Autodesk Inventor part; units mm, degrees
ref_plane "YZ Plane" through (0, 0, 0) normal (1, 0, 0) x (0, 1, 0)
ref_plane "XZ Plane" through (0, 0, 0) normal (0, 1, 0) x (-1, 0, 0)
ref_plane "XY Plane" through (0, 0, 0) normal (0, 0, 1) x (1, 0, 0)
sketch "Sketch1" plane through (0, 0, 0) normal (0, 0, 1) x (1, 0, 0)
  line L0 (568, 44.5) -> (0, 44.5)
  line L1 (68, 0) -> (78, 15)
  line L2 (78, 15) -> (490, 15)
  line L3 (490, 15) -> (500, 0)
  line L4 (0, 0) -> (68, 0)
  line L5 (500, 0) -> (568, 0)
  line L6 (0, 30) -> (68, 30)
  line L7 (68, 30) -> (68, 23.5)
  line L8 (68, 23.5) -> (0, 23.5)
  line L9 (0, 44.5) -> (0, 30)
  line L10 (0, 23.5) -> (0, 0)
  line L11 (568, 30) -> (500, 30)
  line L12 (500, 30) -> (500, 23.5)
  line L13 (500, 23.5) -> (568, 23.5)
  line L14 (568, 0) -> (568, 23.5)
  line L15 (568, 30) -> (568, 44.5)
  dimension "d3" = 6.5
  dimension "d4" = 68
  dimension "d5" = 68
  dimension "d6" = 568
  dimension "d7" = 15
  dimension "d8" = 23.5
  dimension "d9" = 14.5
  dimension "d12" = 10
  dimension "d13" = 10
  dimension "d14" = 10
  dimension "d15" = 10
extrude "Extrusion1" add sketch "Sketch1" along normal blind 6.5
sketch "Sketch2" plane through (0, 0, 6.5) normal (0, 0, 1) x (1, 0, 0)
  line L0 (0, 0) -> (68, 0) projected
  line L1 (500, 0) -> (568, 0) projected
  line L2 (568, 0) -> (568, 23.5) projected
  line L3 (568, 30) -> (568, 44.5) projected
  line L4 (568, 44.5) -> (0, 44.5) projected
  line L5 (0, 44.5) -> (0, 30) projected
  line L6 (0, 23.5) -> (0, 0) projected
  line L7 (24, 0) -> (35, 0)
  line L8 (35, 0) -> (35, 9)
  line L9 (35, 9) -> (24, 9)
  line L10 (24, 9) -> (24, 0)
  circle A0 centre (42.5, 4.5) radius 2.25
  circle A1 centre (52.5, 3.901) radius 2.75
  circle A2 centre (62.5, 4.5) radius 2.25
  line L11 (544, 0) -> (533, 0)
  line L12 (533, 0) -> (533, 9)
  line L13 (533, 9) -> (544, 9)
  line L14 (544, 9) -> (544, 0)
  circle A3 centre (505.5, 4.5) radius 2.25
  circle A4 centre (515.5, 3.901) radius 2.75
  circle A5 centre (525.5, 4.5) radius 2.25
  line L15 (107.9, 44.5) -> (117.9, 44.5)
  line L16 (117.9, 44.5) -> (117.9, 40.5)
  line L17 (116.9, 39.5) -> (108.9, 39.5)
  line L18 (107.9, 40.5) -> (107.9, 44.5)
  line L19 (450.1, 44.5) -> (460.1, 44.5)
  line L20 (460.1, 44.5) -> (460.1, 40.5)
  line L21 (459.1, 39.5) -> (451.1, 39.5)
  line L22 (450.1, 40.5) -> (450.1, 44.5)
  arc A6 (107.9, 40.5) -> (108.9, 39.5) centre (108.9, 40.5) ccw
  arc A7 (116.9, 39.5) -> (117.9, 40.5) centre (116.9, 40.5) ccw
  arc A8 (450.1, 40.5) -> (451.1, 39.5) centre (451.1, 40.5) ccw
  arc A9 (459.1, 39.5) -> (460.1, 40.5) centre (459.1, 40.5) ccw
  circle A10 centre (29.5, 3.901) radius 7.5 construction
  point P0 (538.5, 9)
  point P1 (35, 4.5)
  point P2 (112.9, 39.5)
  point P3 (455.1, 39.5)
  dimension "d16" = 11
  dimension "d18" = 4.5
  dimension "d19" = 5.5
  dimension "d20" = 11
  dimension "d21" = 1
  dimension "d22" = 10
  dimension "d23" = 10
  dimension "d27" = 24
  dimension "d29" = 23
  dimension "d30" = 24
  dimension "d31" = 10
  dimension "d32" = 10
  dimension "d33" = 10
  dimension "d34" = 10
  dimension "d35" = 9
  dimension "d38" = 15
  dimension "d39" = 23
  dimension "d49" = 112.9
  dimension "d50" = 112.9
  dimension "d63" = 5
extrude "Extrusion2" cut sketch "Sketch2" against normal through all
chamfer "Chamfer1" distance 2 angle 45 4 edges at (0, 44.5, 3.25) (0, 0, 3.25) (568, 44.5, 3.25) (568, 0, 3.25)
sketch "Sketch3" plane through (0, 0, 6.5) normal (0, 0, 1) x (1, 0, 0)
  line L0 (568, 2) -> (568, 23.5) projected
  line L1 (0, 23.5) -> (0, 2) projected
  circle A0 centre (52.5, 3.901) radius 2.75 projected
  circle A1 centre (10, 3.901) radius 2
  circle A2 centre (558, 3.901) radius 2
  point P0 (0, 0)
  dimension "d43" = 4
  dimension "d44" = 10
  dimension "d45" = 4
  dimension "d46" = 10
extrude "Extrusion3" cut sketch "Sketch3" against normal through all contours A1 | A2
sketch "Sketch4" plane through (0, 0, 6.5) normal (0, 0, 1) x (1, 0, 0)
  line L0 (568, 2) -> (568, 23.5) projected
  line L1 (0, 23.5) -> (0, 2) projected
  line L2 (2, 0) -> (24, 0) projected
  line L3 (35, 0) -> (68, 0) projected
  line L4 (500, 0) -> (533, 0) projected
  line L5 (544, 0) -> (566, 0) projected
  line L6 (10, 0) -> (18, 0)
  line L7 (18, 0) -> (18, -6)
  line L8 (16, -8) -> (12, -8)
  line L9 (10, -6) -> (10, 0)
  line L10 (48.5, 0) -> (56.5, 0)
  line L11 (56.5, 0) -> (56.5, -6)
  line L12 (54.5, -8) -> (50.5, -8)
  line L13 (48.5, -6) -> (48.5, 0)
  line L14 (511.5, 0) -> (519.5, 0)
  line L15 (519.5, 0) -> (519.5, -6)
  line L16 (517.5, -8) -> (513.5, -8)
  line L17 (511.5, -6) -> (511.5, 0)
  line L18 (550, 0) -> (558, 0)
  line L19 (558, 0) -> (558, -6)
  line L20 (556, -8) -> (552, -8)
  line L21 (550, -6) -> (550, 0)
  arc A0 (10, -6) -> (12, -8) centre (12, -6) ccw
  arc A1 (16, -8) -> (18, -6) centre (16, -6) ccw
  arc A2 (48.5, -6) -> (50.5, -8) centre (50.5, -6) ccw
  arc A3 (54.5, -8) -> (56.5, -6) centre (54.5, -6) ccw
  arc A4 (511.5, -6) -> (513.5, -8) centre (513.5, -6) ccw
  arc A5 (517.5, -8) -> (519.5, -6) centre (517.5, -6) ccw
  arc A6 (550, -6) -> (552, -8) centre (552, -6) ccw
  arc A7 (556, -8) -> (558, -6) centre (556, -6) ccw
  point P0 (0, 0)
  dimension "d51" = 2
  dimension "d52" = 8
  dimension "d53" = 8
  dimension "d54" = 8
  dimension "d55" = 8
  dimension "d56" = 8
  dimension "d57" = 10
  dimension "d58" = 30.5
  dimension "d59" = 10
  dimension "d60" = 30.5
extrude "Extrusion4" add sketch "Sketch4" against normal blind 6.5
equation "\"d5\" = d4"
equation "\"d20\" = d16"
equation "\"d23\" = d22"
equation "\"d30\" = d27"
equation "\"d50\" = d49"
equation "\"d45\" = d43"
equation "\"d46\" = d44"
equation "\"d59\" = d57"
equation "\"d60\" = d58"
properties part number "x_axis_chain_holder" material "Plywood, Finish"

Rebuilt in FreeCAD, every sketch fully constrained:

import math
import FreeCAD as App
import Part
import Sketcher
Q = App.Units.Quantity


def edges_at(feature, points):
    """Names of the edges that pass closest to the given points."""
    edges = feature.Shape.Edges
    near = lambda p: min(range(len(edges)), key=lambda i: edges[i].distToShape(Part.Vertex(*p))[0])
    return sorted({f"Edge{near(p) + 1}" for p in points})


def add_polygon(sketch, points):
    """Adds a closed chain of lines whose ends are joined by coincident constraints."""
    first, n = sketch.GeometryCount, len(points)
    for a, b in zip(points, points[1:] + points[:1]):
        sketch.addGeometry(Part.LineSegment(App.Vector(*a, 0), App.Vector(*b, 0)), False)
    for i in range(n):
        sketch.addConstraint(Sketcher.Constraint("Coincident", first + i, 2, first + (i + 1) % n, 1))

doc = App.newDocument("Part")
params = doc.addObject("Spreadsheet::Sheet", "Params")
for row, (alias, value) in enumerate([
    ("sketch1_width", "568 mm"),
    ("sketch1_width2", "68 mm"),
    ("sketch1_height", "14.5 mm"),
    ("sketch1_height2", "6.5 mm"),
    ("sketch1_height3", "23.5 mm"),
    ("pad1_length", "6.5 mm"),
    ("sketch2_radius", "1 mm"),
    ("sketch2_diameter", "4.5 mm"),
    ("sketch2_diameter2", "5.5 mm"),
    ("sketch2_width", "11 mm"),
    ("sketch2_width2", "10 mm"),
    ("chamfer_size", "2 mm"),
    ("sketch3_diameter", "4 mm"),
    ("sketch4_radius", "2 mm"),
    ("sketch4_width", "8 mm"),
    ("pad2_length", "6.5 mm"),
], start=1):
    params.set(f"A{row}", alias)
    params.set(f"B{row}", "=" + value)
    params.setAlias(f"B{row}", alias)

body = doc.addObject("PartDesign::Body", "Body")

# Sketch on XY plane
sketch1 = doc.addObject("Sketcher::SketchObject", "Sketch")
body.addObject(sketch1)
sketch1.AttachmentSupport = (doc.XY_Plane, [""])
sketch1.MapMode = "FlatFace"
add_polygon(sketch1, [(568, 30), (568, 44), (0, 44), (0, 30), (68, 30), (68, 24), (0, 24), (0, 0), (68, 0), (78, 15), (490, 15), (500, 0), (568, 0), (568, 24), (500, 24), (500, 30)])  # lines 0-15
sketch1.addConstraint([
    Sketcher.Constraint("Vertical", 0),
    Sketcher.Constraint("Horizontal", 1),
    Sketcher.Constraint("Vertical", 2),
    Sketcher.Constraint("Horizontal", 3),
    Sketcher.Constraint("Vertical", 4),
    Sketcher.Constraint("Horizontal", 5),
    Sketcher.Constraint("Vertical", 6),
    Sketcher.Constraint("Horizontal", 7),
    Sketcher.Constraint("Horizontal", 9),
    Sketcher.Constraint("Horizontal", 11),
    Sketcher.Constraint("Vertical", 12),
    Sketcher.Constraint("Horizontal", 13),
    Sketcher.Constraint("Vertical", 14),
    Sketcher.Constraint("Horizontal", 15),
    Sketcher.Constraint("Coincident", 6, 2, -1, 1),
    Sketcher.Constraint("PointOnObject", 1, 2, -2),
    Sketcher.Constraint("PointOnObject", 10, 2, -1),
    Sketcher.Constraint("Horizontal", 5, 2, 12, 2),
    Sketcher.Constraint("Horizontal", 3, 2, 14, 2),
    Sketcher.Constraint("Vertical", 4, 2, 7, 2),
    Sketcher.Constraint("Vertical", 0, 2, 11, 2),
    Sketcher.Constraint("Vertical", 10, 2, 13, 2),
    Sketcher.Constraint("Equal", 7, 11),
    Sketcher.Constraint("Equal", 8, 10),
    Sketcher.Constraint("DistanceX", 1, 2, 1, 1, Q("568 mm")),
    Sketcher.Constraint("DistanceX", 3, 1, 3, 2, Q("68 mm")),
    Sketcher.Constraint("DistanceY", 0, 1, 0, 2, Q("14.5 mm")),
    Sketcher.Constraint("DistanceY", 4, 2, 4, 1, Q("6.5 mm")),
    Sketcher.Constraint("DistanceY", 6, 2, 6, 1, Q("23.5 mm")),
    Sketcher.Constraint("DistanceY", -1, 1, 8, 2, Q("15 mm")),
    Sketcher.Constraint("DistanceX", 4, 2, 8, 2, Q("10 mm")),
])
sketch1.setExpression("Constraints[40]", "Params.sketch1_width")
sketch1.setExpression("Constraints[41]", "Params.sketch1_width2")
sketch1.setExpression("Constraints[42]", "Params.sketch1_height")
sketch1.setExpression("Constraints[43]", "Params.sketch1_height2")
sketch1.setExpression("Constraints[44]", "Params.sketch1_height3")
pad1 = doc.addObject("PartDesign::Pad", "Pad")
body.addObject(pad1)
pad1.Profile = sketch1
pad1.setExpression("Length", "Params.pad1_length")

# Sketch on XY plane
sketch2 = doc.addObject("Sketcher::SketchObject", "Sketch001")
body.addObject(sketch2)
sketch2.AttachmentSupport = (doc.XY_Plane, [""])
sketch2.MapMode = "FlatFace"
sketch2.AttachmentOffset = App.Placement(App.Vector(0, 0, 6.5), App.Rotation())
add_polygon(sketch2, [(24, 9), (24, 0), (35, 0), (35, 9)])  # lines 0-3
add_polygon(sketch2, [(533, 9), (533, 0), (544, 0), (544, 9)])  # lines 4-7
sketch2.addGeometry(Part.LineSegment(App.Vector(460.1, 40.5, 0), App.Vector(460.1, 44.5, 0)), False)  # 8
sketch2.addGeometry(Part.LineSegment(App.Vector(460.1, 44.5, 0), App.Vector(450.1, 44.5, 0)), False)  # 9
sketch2.addGeometry(Part.LineSegment(App.Vector(450.1, 44.5, 0), App.Vector(450.1, 40.5, 0)), False)  # 10
sketch2.addGeometry(Part.ArcOfCircle(Part.Circle(App.Vector(451.1, 40.5, 0), App.Vector(0, 0, 1), 1), math.radians(180), math.radians(270)), False)  # 11
sketch2.addGeometry(Part.LineSegment(App.Vector(451.1, 39.5, 0), App.Vector(459.1, 39.5, 0)), False)  # 12
sketch2.addGeometry(Part.ArcOfCircle(Part.Circle(App.Vector(459.1, 40.5, 0), App.Vector(0, 0, 1), 1), math.radians(-90), math.radians(0)), False)  # 13
sketch2.addGeometry(Part.LineSegment(App.Vector(117.9, 40.5, 0), App.Vector(117.9, 44.5, 0)), False)  # 14
sketch2.addGeometry(Part.LineSegment(App.Vector(117.9, 44.5, 0), App.Vector(107.9, 44.5, 0)), False)  # 15
sketch2.addGeometry(Part.LineSegment(App.Vector(107.9, 44.5, 0), App.Vector(107.9, 40.5, 0)), False)  # 16
sketch2.addGeometry(Part.ArcOfCircle(Part.Circle(App.Vector(108.9, 40.5, 0), App.Vector(0, 0, 1), 1), math.radians(180), math.radians(270)), False)  # 17
sketch2.addGeometry(Part.LineSegment(App.Vector(108.9, 39.5, 0), App.Vector(116.9, 39.5, 0)), False)  # 18
sketch2.addGeometry(Part.ArcOfCircle(Part.Circle(App.Vector(116.9, 40.5, 0), App.Vector(0, 0, 1), 1), math.radians(-90), math.radians(0)), False)  # 19
sketch2.addGeometry(Part.Circle(App.Vector(42.5, 4.5, 0), App.Vector(0, 0, 1), 2.2), False)  # 20
sketch2.addGeometry(Part.Circle(App.Vector(52.5, 3.9, 0), App.Vector(0, 0, 1), 2.8), False)  # 21
sketch2.addGeometry(Part.Circle(App.Vector(62.5, 4.5, 0), App.Vector(0, 0, 1), 2.2), False)  # 22
sketch2.addGeometry(Part.Circle(App.Vector(505.5, 4.5, 0), App.Vector(0, 0, 1), 2.2), False)  # 23
sketch2.addGeometry(Part.Circle(App.Vector(515.5, 3.9, 0), App.Vector(0, 0, 1), 2.8), False)  # 24
sketch2.addGeometry(Part.Circle(App.Vector(525.5, 4.5, 0), App.Vector(0, 0, 1), 2.2), False)  # 25
sketch2.addConstraint([
    Sketcher.Constraint("Coincident", 8, 2, 9, 1),
    Sketcher.Constraint("Coincident", 9, 2, 10, 1),
    Sketcher.Constraint("Tangent", 10, 2, 11, 1),
    Sketcher.Constraint("Tangent", 11, 2, 12, 1),
    Sketcher.Constraint("Tangent", 12, 2, 13, 1),
    Sketcher.Constraint("Tangent", 13, 2, 8, 1),
    Sketcher.Constraint("Coincident", 14, 2, 15, 1),
    Sketcher.Constraint("Coincident", 15, 2, 16, 1),
    Sketcher.Constraint("Tangent", 16, 2, 17, 1),
    Sketcher.Constraint("Tangent", 17, 2, 18, 1),
    Sketcher.Constraint("Tangent", 18, 2, 19, 1),
    Sketcher.Constraint("Tangent", 19, 2, 14, 1),
    Sketcher.Constraint("Vertical", 0),
    Sketcher.Constraint("Horizontal", 1),
    Sketcher.Constraint("Vertical", 2),
    Sketcher.Constraint("Horizontal", 3),
    Sketcher.Constraint("Vertical", 4),
    Sketcher.Constraint("Horizontal", 5),
    Sketcher.Constraint("Vertical", 6),
    Sketcher.Constraint("Horizontal", 7),
    Sketcher.Constraint("Vertical", 8),
    Sketcher.Constraint("Horizontal", 9),
    Sketcher.Constraint("Vertical", 10),
    Sketcher.Constraint("Horizontal", 12),
    Sketcher.Constraint("Vertical", 14),
    Sketcher.Constraint("Horizontal", 15),
    Sketcher.Constraint("Vertical", 16),
    Sketcher.Constraint("Horizontal", 18),
    Sketcher.Constraint("Equal", 11, 13),
    Sketcher.Constraint("Equal", 13, 17),
    Sketcher.Constraint("Equal", 17, 19),
    Sketcher.Constraint("Equal", 20, 22),
    Sketcher.Constraint("Equal", 22, 23),
    Sketcher.Constraint("Equal", 21, 24),
    Sketcher.Constraint("Equal", 23, 25),
    Sketcher.Constraint("PointOnObject", 0, 2, -1),
    Sketcher.Constraint("PointOnObject", 4, 2, -1),
    Sketcher.Constraint("Horizontal", 13, 3, 17, 3),
    Sketcher.Constraint("Horizontal", 20, 3, 22, 3),
    Sketcher.Constraint("Horizontal", 22, 3, 23, 3),
    Sketcher.Constraint("Horizontal", 21, 3, 24, 3),
    Sketcher.Constraint("Horizontal", 23, 3, 25, 3),
    Sketcher.Constraint("Horizontal", 3, 2, 6, 2),
    Sketcher.Constraint("Horizontal", 9, 2, 14, 2),
    Sketcher.Constraint("Equal", 3, 5),
    Sketcher.Constraint("Equal", 9, 15),
    Sketcher.Constraint("Radius", 11, Q("1 mm")),
    Sketcher.Constraint("Diameter", 20, Q("4.5 mm")),
    Sketcher.Constraint("Diameter", 21, Q("5.5 mm")),
    Sketcher.Constraint("DistanceX", 1, 1, 1, 2, Q("11 mm")),
    Sketcher.Constraint("DistanceX", 9, 2, 9, 1, Q("10 mm")),
    Sketcher.Constraint("DistanceY", 0, 2, 0, 1, Q("9 mm")),
    Sketcher.Constraint("DistanceX", -1, 1, 0, 2, Q("24 mm")),
    Sketcher.Constraint("DistanceX", 20, 3, 21, 3, Q("10 mm")),
    Sketcher.Constraint("DistanceX", 21, 3, 22, 3, Q("10 mm")),
    Sketcher.Constraint("DistanceX", 23, 3, 24, 3, Q("10 mm")),
    Sketcher.Constraint("DistanceX", 24, 3, 25, 3, Q("10 mm")),
    Sketcher.Constraint("DistanceY", 11, 2, 9, 2, Q("5 mm")),
    Sketcher.Constraint("DistanceY", -1, 1, 20, 3, Q("4.5 mm")),
    Sketcher.Constraint("DistanceX", -1, 1, 4, 2, Q("533 mm")),
    Sketcher.Constraint("DistanceY", 20, 3, 17, 3, Q("36 mm")),
    Sketcher.Constraint("DistanceX", 22, 3, 23, 3, Q("443 mm")),
    Sketcher.Constraint("DistanceX", -1, 1, 11, 3, Q("451.1 mm")),
    Sketcher.Constraint("DistanceX", -1, 1, 17, 3, Q("108.9 mm")),
    Sketcher.Constraint("DistanceX", -1, 1, 20, 3, Q("42.5 mm")),
    Sketcher.Constraint("DistanceY", -1, 1, 21, 3, Q("3.901 mm")),
])
sketch2.setExpression("Constraints[54]", "Params.sketch2_radius")
sketch2.setExpression("Constraints[55]", "Params.sketch2_diameter")
sketch2.setExpression("Constraints[56]", "Params.sketch2_diameter2")
sketch2.setExpression("Constraints[57]", "Params.sketch2_width")
sketch2.setExpression("Constraints[58]", "Params.sketch2_width2")
pocket1 = doc.addObject("PartDesign::Pocket", "Pocket")
body.addObject(pocket1)
pocket1.Profile = sketch2
pocket1.Type = "ThroughAll"
doc.recompute()

chamfer = doc.addObject("PartDesign::Chamfer", "Chamfer")
body.addObject(chamfer)
chamfer.Base = (pocket1, edges_at(pocket1, [
    (0, 44.5, 3.25),
    (0, 0, 3.25),
    (568, 44.5, 3.25),
    (568, 0, 3.25),
]))
chamfer.setExpression("Size", "Params.chamfer_size")

# Sketch on XY plane
sketch3 = doc.addObject("Sketcher::SketchObject", "Sketch002")
body.addObject(sketch3)
sketch3.AttachmentSupport = (doc.XY_Plane, [""])
sketch3.MapMode = "FlatFace"
sketch3.AttachmentOffset = App.Placement(App.Vector(0, 0, 6.5), App.Rotation())
sketch3.addGeometry([
    Part.Circle(App.Vector(10, 3.9, 0), App.Vector(0, 0, 1), 2),
    Part.Circle(App.Vector(558, 3.9, 0), App.Vector(0, 0, 1), 2),
], False)
sketch3.addConstraint([
    Sketcher.Constraint("Equal", 0, 1),
    Sketcher.Constraint("Horizontal", 0, 3, 1, 3),
    Sketcher.Constraint("Diameter", 0, Q("4 mm")),
    Sketcher.Constraint("DistanceX", -1, 1, 0, 3, Q("10 mm")),
    Sketcher.Constraint("DistanceX", -1, 1, 1, 3, Q("558 mm")),
    Sketcher.Constraint("DistanceY", -1, 1, 0, 3, Q("3.901 mm")),
])
sketch3.setExpression("Constraints[2]", "Params.sketch3_diameter")
pocket2 = doc.addObject("PartDesign::Pocket", "Pocket001")
body.addObject(pocket2)
pocket2.Profile = sketch3
pocket2.Type = "ThroughAll"

# Sketch on XY plane
sketch4 = doc.addObject("Sketcher::SketchObject", "Sketch003")
body.addObject(sketch4)
sketch4.AttachmentSupport = (doc.XY_Plane, [""])
sketch4.MapMode = "FlatFace"
sketch4.AttachmentOffset = App.Placement(App.Vector(0, 0, 6.5), App.Rotation())
sketch4.addGeometry([
    Part.LineSegment(App.Vector(18, 0, 0), App.Vector(10, 0, 0)),  # 0
    Part.LineSegment(App.Vector(10, 0, 0), App.Vector(10, -6, 0)),  # 1
    Part.ArcOfCircle(Part.Circle(App.Vector(12, -6, 0), App.Vector(0, 0, 1), 2), math.radians(180), math.radians(270)),  # 2
    Part.LineSegment(App.Vector(12, -8, 0), App.Vector(16, -8, 0)),  # 3
    Part.ArcOfCircle(Part.Circle(App.Vector(16, -6, 0), App.Vector(0, 0, 1), 2), math.radians(-90), math.radians(0)),  # 4
    Part.LineSegment(App.Vector(18, -6, 0), App.Vector(18, 0, 0)),  # 5
    Part.LineSegment(App.Vector(56.5, 0, 0), App.Vector(48.5, 0, 0)),  # 6
    Part.LineSegment(App.Vector(48.5, 0, 0), App.Vector(48.5, -6, 0)),  # 7
    Part.ArcOfCircle(Part.Circle(App.Vector(50.5, -6, 0), App.Vector(0, 0, 1), 2), math.radians(180), math.radians(270)),  # 8
    Part.LineSegment(App.Vector(50.5, -8, 0), App.Vector(54.5, -8, 0)),  # 9
    Part.ArcOfCircle(Part.Circle(App.Vector(54.5, -6, 0), App.Vector(0, 0, 1), 2), math.radians(-90), math.radians(0)),  # 10
    Part.LineSegment(App.Vector(56.5, -6, 0), App.Vector(56.5, 0, 0)),  # 11
    Part.LineSegment(App.Vector(519.5, 0, 0), App.Vector(511.5, 0, 0)),  # 12
    Part.LineSegment(App.Vector(511.5, 0, 0), App.Vector(511.5, -6, 0)),  # 13
    Part.ArcOfCircle(Part.Circle(App.Vector(513.5, -6, 0), App.Vector(0, 0, 1), 2), math.radians(180), math.radians(270)),  # 14
    Part.LineSegment(App.Vector(513.5, -8, 0), App.Vector(517.5, -8, 0)),  # 15
    Part.ArcOfCircle(Part.Circle(App.Vector(517.5, -6, 0), App.Vector(0, 0, 1), 2), math.radians(-90), math.radians(0)),  # 16
    Part.LineSegment(App.Vector(519.5, -6, 0), App.Vector(519.5, 0, 0)),  # 17
    Part.LineSegment(App.Vector(558, 0, 0), App.Vector(550, 0, 0)),  # 18
    Part.LineSegment(App.Vector(550, 0, 0), App.Vector(550, -6, 0)),  # 19
    Part.ArcOfCircle(Part.Circle(App.Vector(552, -6, 0), App.Vector(0, 0, 1), 2), math.radians(180), math.radians(270)),  # 20
    Part.LineSegment(App.Vector(552, -8, 0), App.Vector(556, -8, 0)),  # 21
    Part.ArcOfCircle(Part.Circle(App.Vector(556, -6, 0), App.Vector(0, 0, 1), 2), math.radians(-90), math.radians(0)),  # 22
    Part.LineSegment(App.Vector(558, -6, 0), App.Vector(558, 0, 0)),  # 23
], False)
sketch4.addConstraint([
    Sketcher.Constraint("Coincident", 0, 2, 1, 1),
    Sketcher.Constraint("Tangent", 1, 2, 2, 1),
    Sketcher.Constraint("Tangent", 2, 2, 3, 1),
    Sketcher.Constraint("Tangent", 3, 2, 4, 1),
    Sketcher.Constraint("Tangent", 4, 2, 5, 1),
    Sketcher.Constraint("Coincident", 5, 2, 0, 1),
    Sketcher.Constraint("Coincident", 6, 2, 7, 1),
    Sketcher.Constraint("Tangent", 7, 2, 8, 1),
    Sketcher.Constraint("Tangent", 8, 2, 9, 1),
    Sketcher.Constraint("Tangent", 9, 2, 10, 1),
    Sketcher.Constraint("Tangent", 10, 2, 11, 1),
    Sketcher.Constraint("Coincident", 11, 2, 6, 1),
    Sketcher.Constraint("Coincident", 12, 2, 13, 1),
    Sketcher.Constraint("Tangent", 13, 2, 14, 1),
    Sketcher.Constraint("Tangent", 14, 2, 15, 1),
    Sketcher.Constraint("Tangent", 15, 2, 16, 1),
    Sketcher.Constraint("Tangent", 16, 2, 17, 1),
    Sketcher.Constraint("Coincident", 17, 2, 12, 1),
    Sketcher.Constraint("Coincident", 18, 2, 19, 1),
    Sketcher.Constraint("Tangent", 19, 2, 20, 1),
    Sketcher.Constraint("Tangent", 20, 2, 21, 1),
    Sketcher.Constraint("Tangent", 21, 2, 22, 1),
    Sketcher.Constraint("Tangent", 22, 2, 23, 1),
    Sketcher.Constraint("Coincident", 23, 2, 18, 1),
    Sketcher.Constraint("Horizontal", 0),
    Sketcher.Constraint("Vertical", 1),
    Sketcher.Constraint("Horizontal", 3),
    Sketcher.Constraint("Vertical", 5),
    Sketcher.Constraint("Horizontal", 6),
    Sketcher.Constraint("Vertical", 7),
    Sketcher.Constraint("Horizontal", 9),
    Sketcher.Constraint("Vertical", 11),
    Sketcher.Constraint("Horizontal", 12),
    Sketcher.Constraint("Vertical", 13),
    Sketcher.Constraint("Horizontal", 15),
    Sketcher.Constraint("Vertical", 17),
    Sketcher.Constraint("Horizontal", 18),
    Sketcher.Constraint("Vertical", 19),
    Sketcher.Constraint("Horizontal", 21),
    Sketcher.Constraint("Vertical", 23),
    Sketcher.Constraint("Equal", 2, 4),
    Sketcher.Constraint("Equal", 4, 8),
    Sketcher.Constraint("Equal", 8, 10),
    Sketcher.Constraint("Equal", 10, 14),
    Sketcher.Constraint("Equal", 14, 16),
    Sketcher.Constraint("Equal", 16, 20),
    Sketcher.Constraint("Equal", 20, 22),
    Sketcher.Constraint("PointOnObject", 0, 2, -1),
    Sketcher.Constraint("PointOnObject", 6, 2, -1),
    Sketcher.Constraint("PointOnObject", 12, 2, -1),
    Sketcher.Constraint("PointOnObject", 18, 2, -1),
    Sketcher.Constraint("Horizontal", 4, 3, 8, 3),
    Sketcher.Constraint("Horizontal", 10, 3, 14, 3),
    Sketcher.Constraint("Horizontal", 16, 3, 20, 3),
    Sketcher.Constraint("Equal", 0, 6),
    Sketcher.Constraint("Equal", 6, 12),
    Sketcher.Constraint("Equal", 12, 18),
    Sketcher.Constraint("Radius", 2, Q("2 mm")),
    Sketcher.Constraint("DistanceX", 0, 2, 0, 1, Q("8 mm")),
    Sketcher.Constraint("DistanceX", -1, 1, 0, 2, Q("10 mm")),
    Sketcher.Constraint("DistanceY", 2, 2, -1, 1, Q("8 mm")),
    Sketcher.Constraint("DistanceX", 5, 2, 6, 2, Q("30.5 mm")),
    Sketcher.Constraint("DistanceX", 17, 2, 18, 2, Q("30.5 mm")),
    Sketcher.Constraint("DistanceX", -1, 1, 20, 3, Q("552 mm")),
])
sketch4.setExpression("Constraints[57]", "Params.sketch4_radius")
sketch4.setExpression("Constraints[58]", "Params.sketch4_width")
pad2 = doc.addObject("PartDesign::Pad", "Pad001")
body.addObject(pad2)
pad2.Profile = sketch4
pad2.setExpression("Length", "Params.pad2_length")
pad2.Reversed = True

doc.recompute()
